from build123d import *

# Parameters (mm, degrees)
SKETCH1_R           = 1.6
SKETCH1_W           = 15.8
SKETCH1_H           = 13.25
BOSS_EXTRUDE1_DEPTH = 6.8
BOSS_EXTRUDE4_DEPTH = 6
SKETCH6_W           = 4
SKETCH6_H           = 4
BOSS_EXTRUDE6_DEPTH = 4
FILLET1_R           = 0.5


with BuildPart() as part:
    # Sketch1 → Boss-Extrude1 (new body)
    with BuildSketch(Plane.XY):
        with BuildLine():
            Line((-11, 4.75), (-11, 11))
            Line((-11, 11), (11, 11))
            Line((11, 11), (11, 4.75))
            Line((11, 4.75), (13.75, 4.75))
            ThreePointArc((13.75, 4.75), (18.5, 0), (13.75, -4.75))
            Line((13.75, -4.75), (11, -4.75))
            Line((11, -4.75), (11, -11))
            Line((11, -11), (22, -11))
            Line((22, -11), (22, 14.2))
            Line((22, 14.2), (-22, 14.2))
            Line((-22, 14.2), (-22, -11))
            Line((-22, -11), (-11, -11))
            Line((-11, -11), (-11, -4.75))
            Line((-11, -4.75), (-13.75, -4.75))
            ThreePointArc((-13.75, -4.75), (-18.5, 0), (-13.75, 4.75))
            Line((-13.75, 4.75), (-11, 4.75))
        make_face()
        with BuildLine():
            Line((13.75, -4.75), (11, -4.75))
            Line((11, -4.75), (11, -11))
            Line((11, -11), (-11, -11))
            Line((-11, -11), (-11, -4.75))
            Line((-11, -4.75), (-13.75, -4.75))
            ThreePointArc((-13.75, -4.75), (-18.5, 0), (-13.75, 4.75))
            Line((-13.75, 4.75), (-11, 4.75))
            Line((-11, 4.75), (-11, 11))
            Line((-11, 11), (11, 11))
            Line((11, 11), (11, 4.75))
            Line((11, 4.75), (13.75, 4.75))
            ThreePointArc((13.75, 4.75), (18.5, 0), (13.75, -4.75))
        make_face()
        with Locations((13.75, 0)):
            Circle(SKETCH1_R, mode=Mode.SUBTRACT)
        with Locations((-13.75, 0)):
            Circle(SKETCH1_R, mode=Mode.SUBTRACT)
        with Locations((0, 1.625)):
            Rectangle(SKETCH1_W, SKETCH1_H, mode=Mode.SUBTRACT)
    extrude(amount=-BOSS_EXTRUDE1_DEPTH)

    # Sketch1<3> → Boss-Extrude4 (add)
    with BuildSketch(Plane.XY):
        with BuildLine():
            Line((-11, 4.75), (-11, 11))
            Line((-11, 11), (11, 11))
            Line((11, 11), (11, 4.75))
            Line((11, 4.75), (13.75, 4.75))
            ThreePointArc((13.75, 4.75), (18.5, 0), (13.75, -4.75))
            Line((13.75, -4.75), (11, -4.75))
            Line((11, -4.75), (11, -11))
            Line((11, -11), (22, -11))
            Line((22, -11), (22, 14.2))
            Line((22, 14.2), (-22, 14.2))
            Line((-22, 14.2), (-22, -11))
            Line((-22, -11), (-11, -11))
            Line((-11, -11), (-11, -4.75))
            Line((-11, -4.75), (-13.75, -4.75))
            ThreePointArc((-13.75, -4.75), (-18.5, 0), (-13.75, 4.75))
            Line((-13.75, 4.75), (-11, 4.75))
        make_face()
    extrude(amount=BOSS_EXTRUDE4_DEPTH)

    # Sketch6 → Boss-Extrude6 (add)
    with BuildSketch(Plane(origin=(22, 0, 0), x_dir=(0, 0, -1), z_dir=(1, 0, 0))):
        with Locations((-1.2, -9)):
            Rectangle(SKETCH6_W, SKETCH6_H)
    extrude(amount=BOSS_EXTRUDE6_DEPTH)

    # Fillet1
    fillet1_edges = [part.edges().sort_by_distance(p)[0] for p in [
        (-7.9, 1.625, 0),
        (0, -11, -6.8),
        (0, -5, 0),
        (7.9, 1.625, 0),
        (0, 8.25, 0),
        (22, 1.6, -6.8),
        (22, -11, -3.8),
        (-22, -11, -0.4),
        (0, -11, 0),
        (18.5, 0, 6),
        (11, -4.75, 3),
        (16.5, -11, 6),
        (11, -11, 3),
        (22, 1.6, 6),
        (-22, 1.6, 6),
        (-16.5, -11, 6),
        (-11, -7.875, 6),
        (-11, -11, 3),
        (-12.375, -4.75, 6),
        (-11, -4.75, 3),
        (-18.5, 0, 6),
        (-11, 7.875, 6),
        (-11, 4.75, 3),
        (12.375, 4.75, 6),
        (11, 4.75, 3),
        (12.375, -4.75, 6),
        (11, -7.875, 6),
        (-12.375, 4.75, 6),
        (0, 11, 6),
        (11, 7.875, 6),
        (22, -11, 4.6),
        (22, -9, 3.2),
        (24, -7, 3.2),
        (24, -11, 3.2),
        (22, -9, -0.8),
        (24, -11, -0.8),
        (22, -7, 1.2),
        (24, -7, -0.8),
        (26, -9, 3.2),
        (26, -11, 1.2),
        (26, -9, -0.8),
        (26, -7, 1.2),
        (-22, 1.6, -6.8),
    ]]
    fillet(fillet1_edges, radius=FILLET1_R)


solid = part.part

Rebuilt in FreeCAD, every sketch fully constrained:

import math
import FreeCAD as App
import Part
import Sketcher
from FreeCAD import Vector


def edges_at(feature, points):
    """Names of the edges that pass closest to the given points."""
    edges = feature.Shape.Edges
    near = lambda p: min(range(len(edges)), key=lambda i: edges[i].distToShape(Part.Vertex(*p))[0])
    return sorted({f"Edge{near(p) + 1}" for p in points})

doc = App.newDocument("Part")
body = doc.addObject("PartDesign::Body", "Body")

# Sketch on XY plane
sketch1 = body.newObject("Sketcher::SketchObject", "Sketch")
sketch1.AttachmentSupport = (doc.getObject("XY_Plane"), [""])
sketch1.MapMode = "FlatFace"
sketch1.addGeometry([
    Part.LineSegment(Vector(22, -11, 0), Vector(22, 14.2, 0)),  # 0
    Part.LineSegment(Vector(22, 14.2, 0), Vector(-22, 14.2, 0)),  # 1
    Part.LineSegment(Vector(-22, 14.2, 0), Vector(-22, -11, 0)),  # 2
    Part.LineSegment(Vector(-22, -11, 0), Vector(22, -11, 0)),  # 3
    Part.Circle(Vector(-13.75, 0, 0), Vector(0, 0, 1), 1.6),  # 4
    Part.Circle(Vector(13.75, 0, 0), Vector(0, 0, 1), 1.6),  # 5
    Part.LineSegment(Vector(7.9, -5, 0), Vector(-7.9, -5, 0)),  # 6
    Part.LineSegment(Vector(-7.9, -5, 0), Vector(-7.9, 8.25, 0)),  # 7
    Part.LineSegment(Vector(-7.9, 8.25, 0), Vector(7.9, 8.25, 0)),  # 8
    Part.LineSegment(Vector(7.9, 8.25, 0), Vector(7.9, -5, 0)),  # 9
], False)
sketch1.addConstraint([
    Sketcher.Constraint("Coincident", 0, 2, 1, 1),
    Sketcher.Constraint("Coincident", 1, 2, 2, 1),
    Sketcher.Constraint("Coincident", 2, 2, 3, 1),
    Sketcher.Constraint("Coincident", 3, 2, 0, 1),
    Sketcher.Constraint("Coincident", 6, 2, 7, 1),
    Sketcher.Constraint("Coincident", 7, 2, 8, 1),
    Sketcher.Constraint("Coincident", 8, 2, 9, 1),
    Sketcher.Constraint("Coincident", 9, 2, 6, 1),
    Sketcher.Constraint("Vertical", 0),
    Sketcher.Constraint("Horizontal", 1),
    Sketcher.Constraint("Vertical", 2),
    Sketcher.Constraint("Horizontal", 3),
    Sketcher.Constraint("Horizontal", 6),
    Sketcher.Constraint("Vertical", 7),
    Sketcher.Constraint("Horizontal", 8),
    Sketcher.Constraint("Vertical", 9),
    Sketcher.Constraint("Equal", 4, 5),
    Sketcher.Constraint("Symmetric", 4, 3, 5, 3, -1, 1),
    Sketcher.Constraint("PointOnObject", 4, 3, -1),
    Sketcher.Constraint("Diameter", 4, 3.2),
    Sketcher.Constraint("DistanceX", 1, 2, 1, 1, 44.0),
    Sketcher.Constraint("DistanceX", 6, 2, 6, 1, 15.8),
    Sketcher.Constraint("DistanceY", 0, 1, 0, 2, 25.2),
    Sketcher.Constraint("DistanceX", -1, 1, 0, 2, 22.0),
    Sketcher.Constraint("DistanceY", 2, 2, -1, 1, 11.0),
    Sketcher.Constraint("DistanceY", 6, 2, -1, 1, 5.0),
    Sketcher.Constraint("DistanceY", 7, 1, 7, 2, 13.25),
    Sketcher.Constraint("DistanceX", 6, 2, -1, 1, 7.9),
    Sketcher.Constraint("DistanceX", 4, 3, 5, 3, 27.5),
])
pad1 = body.newObject("PartDesign::Pad", "Pad")
pad1.Profile = sketch1
pad1.Length = 6.8
pad1.Reversed = True

# Sketch on XY plane
sketch2 = body.newObject("Sketcher::SketchObject", "Sketch001")
sketch2.AttachmentSupport = (doc.getObject("XY_Plane"), [""])
sketch2.MapMode = "FlatFace"
sketch2.addGeometry([
    Part.LineSegment(Vector(-11, 4.75, 0), Vector(-11, 11, 0)),  # 0
    Part.LineSegment(Vector(-11, 11, 0), Vector(11, 11, 0)),  # 1
    Part.LineSegment(Vector(11, 11, 0), Vector(11, 4.75, 0)),  # 2
    Part.LineSegment(Vector(11, 4.75, 0), Vector(13.75, 4.75, 0)),  # 3
    Part.ArcOfCircle(Part.Circle(Vector(13.75, 0, 0), Vector(0, 0, 1), 4.75), math.radians(-90), math.radians(90)),  # 4
    Part.LineSegment(Vector(13.75, -4.75, 0), Vector(11, -4.75, 0)),  # 5
    Part.LineSegment(Vector(11, -4.75, 0), Vector(11, -11, 0)),  # 6
    Part.LineSegment(Vector(11, -11, 0), Vector(22, -11, 0)),  # 7
    Part.LineSegment(Vector(22, -11, 0), Vector(22, 14.2, 0)),  # 8
    Part.LineSegment(Vector(22, 14.2, 0), Vector(-22, 14.2, 0)),  # 9
    Part.LineSegment(Vector(-22, 14.2, 0), Vector(-22, -11, 0)),  # 10
    Part.LineSegment(Vector(-22, -11, 0), Vector(-11, -11, 0)),  # 11
    Part.LineSegment(Vector(-11, -11, 0), Vector(-11, -4.75, 0)),  # 12
    Part.LineSegment(Vector(-11, -4.75, 0), Vector(-13.75, -4.75, 0)),  # 13
    Part.ArcOfCircle(Part.Circle(Vector(-13.75, 0, 0), Vector(0, 0, 1), 4.75), math.radians(90), math.radians(270)),  # 14
    Part.LineSegment(Vector(-13.75, 4.75, 0), Vector(-11, 4.75, 0)),  # 15
], False)
sketch2.addConstraint([
    Sketcher.Constraint("Coincident", 0, 2, 1, 1),
    Sketcher.Constraint("Coincident", 1, 2, 2, 1),
    Sketcher.Constraint("Coincident", 2, 2, 3, 1),
    Sketcher.Constraint("Tangent", 3, 2, 4, 2),
    Sketcher.Constraint("Tangent", 4, 1, 5, 1),
    Sketcher.Constraint("Coincident", 5, 2, 6, 1),
    Sketcher.Constraint("Coincident", 6, 2, 7, 1),
    Sketcher.Constraint("Coincident", 7, 2, 8, 1),
    Sketcher.Constraint("Coincident", 8, 2, 9, 1),
    Sketcher.Constraint("Coincident", 9, 2, 10, 1),
    Sketcher.Constraint("Coincident", 10, 2, 11, 1),
    Sketcher.Constraint("Coincident", 11, 2, 12, 1),
    Sketcher.Constraint("Coincident", 12, 2, 13, 1),
    Sketcher.Constraint("Tangent", 13, 2, 14, 2),
    Sketcher.Constraint("Tangent", 14, 1, 15, 1),
    Sketcher.Constraint("Coincident", 15, 2, 0, 1),
    Sketcher.Constraint("Vertical", 0),
    Sketcher.Constraint("Horizontal", 1),
    Sketcher.Constraint("Vertical", 2),
    Sketcher.Constraint("Horizontal", 3),
    Sketcher.Constraint("Horizontal", 5),
    Sketcher.Constraint("Vertical", 6),
    Sketcher.Constraint("Horizontal", 7),
    Sketcher.Constraint("Vertical", 8),
    Sketcher.Constraint("Horizontal", 9),
    Sketcher.Constraint("Vertical", 10),
    Sketcher.Constraint("Horizontal", 11),
    Sketcher.Constraint("Vertical", 12),
    Sketcher.Constraint("Horizontal", 13),
    Sketcher.Constraint("Horizontal", 15),
    Sketcher.Constraint("Equal", 4, 14),
    Sketcher.Constraint("Symmetric", 4, 3, 14, 3, -1, 1),
    Sketcher.Constraint("Symmetric", 0, 2, 6, 2, -1, 1),
    Sketcher.Constraint("Symmetric", 1, 2, 11, 2, -1, 1),
    Sketcher.Constraint("Symmetric", 5, 2, 12, 2, -2),
    Sketcher.Constraint("Equal", 7, 11),
    Sketcher.Constraint("DistanceX", 1, 1, 1, 2, 22.0),
    Sketcher.Constraint("DistanceX", 7, 1, 7, 2, 11.0),
    Sketcher.Constraint("Radius", 4, 4.75),
    Sketcher.Constraint("DistanceY", 8, 1, 8, 2, 25.2),
    Sketcher.Constraint("DistanceY", -1, 1, 0, 2, 11.0),
    Sketcher.Constraint("DistanceX", 3, 1, 3, 2, 2.75),
])
pad2 = body.newObject("PartDesign::Pad", "Pad001")
pad2.Profile = sketch2
pad2.Length = 6

# Sketch on YZ plane
sketch3 = body.newObject("Sketcher::SketchObject", "Sketch002")
sketch3.AttachmentSupport = (doc.getObject("YZ_Plane"), [""])
sketch3.MapMode = "FlatFace"
sketch3.AttachmentOffset = App.Placement(Vector(0, 0, 22), App.Rotation())
sketch3.addGeometry([
    Part.LineSegment(Vector(-7, 3.2, 0), Vector(-11, 3.2, 0)),
    Part.LineSegment(Vector(-11, 3.2, 0), Vector(-11, -0.8, 0)),
    Part.LineSegment(Vector(-11, -0.8, 0), Vector(-7, -0.8, 0)),
    Part.LineSegment(Vector(-7, -0.8, 0), Vector(-7, 3.2, 0)),
], False)
sketch3.addConstraint([
    Sketcher.Constraint("Coincident", 0, 2, 1, 1),
    Sketcher.Constraint("Coincident", 1, 2, 2, 1),
    Sketcher.Constraint("Coincident", 2, 2, 3, 1),
    Sketcher.Constraint("Coincident", 3, 2, 0, 1),
    Sketcher.Constraint("Horizontal", 0),
    Sketcher.Constraint("Vertical", 1),
    Sketcher.Constraint("Horizontal", 2),
    Sketcher.Constraint("Vertical", 3),
    Sketcher.Constraint("Equal", 2, 1),
    Sketcher.Constraint("DistanceX", 0, 2, 0, 1, 4.0),
    Sketcher.Constraint("DistanceX", 0, 2, -1, 1, 11.0),
    Sketcher.Constraint("DistanceY", -1, 1, 0, 2, 3.2),
])
pad3 = body.newObject("PartDesign::Pad", "Pad002")
pad3.Profile = sketch3
pad3.Length = 4
doc.recompute()

fillet = body.newObject("PartDesign::Fillet", "Fillet")
fillet.Base = (pad3, edges_at(pad3, [
    (-7.9, 1.625, 0),
    (0, -11, -6.8),
    (0, -5, 0),
    (7.9, 1.625, 0),
    (0, 8.25, 0),
    (22, 1.6, -6.8),
    (22, -11, -3.8),
    (-22, -11, -0.4),
    (0, -11, 0),
    (18.5, 0, 6),
    (11, -4.75, 3),
    (16.5, -11, 6),
    (11, -11, 3),
    (22, 1.6, 6),
    (-22, 1.6, 6),
    (-16.5, -11, 6),
    (-11, -7.875, 6),
    (-11, -11, 3),
    (-12.375, -4.75, 6),
    (-11, -4.75, 3),
    (-18.5, 0, 6),
    (-11, 7.875, 6),
    (-11, 4.75, 3),
    (12.375, 4.75, 6),
    (11, 4.75, 3),
    (12.375, -4.75, 6),
    (11, -7.875, 6),
    (-12.375, 4.75, 6),
    (0, 11, 6),
    (11, 7.875, 6),
    (22, -11, 4.6),
    (22, -9, 3.2),
    (24, -7, 3.2),
    (24, -11, 3.2),
    (22, -9, -0.8),
    (24, -11, -0.8),
    (22, -7, 1.2),
    (24, -7, -0.8),
    (26, -9, 3.2),
    (26, -11, 1.2),
    (26, -9, -0.8),
    (26, -7, 1.2),
    (-22, 1.6, -6.8),
]))
fillet.Radius = 0.5

doc.recompute()
